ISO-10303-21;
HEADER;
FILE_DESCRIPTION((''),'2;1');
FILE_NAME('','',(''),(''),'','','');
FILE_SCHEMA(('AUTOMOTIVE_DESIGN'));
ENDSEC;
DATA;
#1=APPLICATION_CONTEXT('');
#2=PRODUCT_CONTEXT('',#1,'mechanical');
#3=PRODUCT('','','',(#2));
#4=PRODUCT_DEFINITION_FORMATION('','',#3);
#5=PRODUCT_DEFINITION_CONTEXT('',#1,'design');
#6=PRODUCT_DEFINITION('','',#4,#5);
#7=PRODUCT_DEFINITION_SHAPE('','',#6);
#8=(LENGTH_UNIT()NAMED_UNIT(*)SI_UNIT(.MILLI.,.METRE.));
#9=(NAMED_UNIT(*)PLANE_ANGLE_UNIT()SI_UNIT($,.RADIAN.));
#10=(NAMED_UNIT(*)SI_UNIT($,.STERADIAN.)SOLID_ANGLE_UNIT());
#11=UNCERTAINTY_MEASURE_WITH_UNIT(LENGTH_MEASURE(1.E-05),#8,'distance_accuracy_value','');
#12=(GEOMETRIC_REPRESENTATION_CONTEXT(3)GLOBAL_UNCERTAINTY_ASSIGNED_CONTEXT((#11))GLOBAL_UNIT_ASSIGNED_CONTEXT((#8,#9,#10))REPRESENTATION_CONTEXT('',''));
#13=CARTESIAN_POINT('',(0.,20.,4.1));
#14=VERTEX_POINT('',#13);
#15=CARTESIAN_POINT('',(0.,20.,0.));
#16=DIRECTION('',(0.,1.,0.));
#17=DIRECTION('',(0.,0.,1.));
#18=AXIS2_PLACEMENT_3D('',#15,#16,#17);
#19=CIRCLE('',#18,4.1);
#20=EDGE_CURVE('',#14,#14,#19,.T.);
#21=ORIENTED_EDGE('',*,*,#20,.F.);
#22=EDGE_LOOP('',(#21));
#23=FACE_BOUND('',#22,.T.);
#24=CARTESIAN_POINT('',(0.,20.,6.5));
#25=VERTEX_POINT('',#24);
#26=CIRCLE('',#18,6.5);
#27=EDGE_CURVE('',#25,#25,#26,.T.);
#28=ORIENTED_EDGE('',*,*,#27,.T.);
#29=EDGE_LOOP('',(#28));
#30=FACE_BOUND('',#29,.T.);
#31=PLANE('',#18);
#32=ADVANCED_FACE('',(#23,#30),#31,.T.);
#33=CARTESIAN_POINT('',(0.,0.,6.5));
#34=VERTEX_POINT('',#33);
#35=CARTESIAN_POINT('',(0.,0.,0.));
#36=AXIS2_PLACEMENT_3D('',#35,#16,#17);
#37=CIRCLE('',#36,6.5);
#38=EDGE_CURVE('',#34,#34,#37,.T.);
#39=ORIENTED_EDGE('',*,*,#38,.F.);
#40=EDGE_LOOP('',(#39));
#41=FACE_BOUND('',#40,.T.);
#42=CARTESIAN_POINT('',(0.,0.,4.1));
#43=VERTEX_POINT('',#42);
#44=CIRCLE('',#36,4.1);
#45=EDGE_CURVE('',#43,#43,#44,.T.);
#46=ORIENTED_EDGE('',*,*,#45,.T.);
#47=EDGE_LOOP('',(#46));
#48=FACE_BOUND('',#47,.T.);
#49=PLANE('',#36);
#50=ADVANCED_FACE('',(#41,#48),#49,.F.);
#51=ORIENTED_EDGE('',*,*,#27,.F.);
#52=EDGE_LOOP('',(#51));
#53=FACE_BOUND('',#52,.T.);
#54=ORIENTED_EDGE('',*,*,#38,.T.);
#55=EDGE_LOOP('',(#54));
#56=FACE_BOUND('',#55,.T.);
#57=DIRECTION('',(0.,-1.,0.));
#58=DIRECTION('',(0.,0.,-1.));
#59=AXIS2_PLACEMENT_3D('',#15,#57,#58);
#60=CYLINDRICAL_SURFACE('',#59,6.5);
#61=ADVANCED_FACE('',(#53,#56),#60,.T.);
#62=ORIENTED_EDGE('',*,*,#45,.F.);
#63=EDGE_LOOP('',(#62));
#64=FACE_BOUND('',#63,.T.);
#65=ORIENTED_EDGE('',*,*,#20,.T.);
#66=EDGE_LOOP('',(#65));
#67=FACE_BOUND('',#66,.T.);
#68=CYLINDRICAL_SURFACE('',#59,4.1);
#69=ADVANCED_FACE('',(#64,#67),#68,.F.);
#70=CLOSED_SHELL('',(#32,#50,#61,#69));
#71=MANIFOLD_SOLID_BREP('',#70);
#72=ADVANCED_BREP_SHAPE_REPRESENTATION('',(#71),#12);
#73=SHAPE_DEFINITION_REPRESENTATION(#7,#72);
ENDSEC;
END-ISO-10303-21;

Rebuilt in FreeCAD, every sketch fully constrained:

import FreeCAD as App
import Part
import Sketcher

V = App.Vector
Q = App.Units.Quantity

doc = App.newDocument("Part")
body = doc.addObject("PartDesign::Body", "Body")

# Sketch on XZ plane
sketch1 = doc.addObject("Sketcher::SketchObject", "Sketch")
body.addObject(sketch1)
sketch1.AttachmentSupport = (doc.XZ_Plane, [""])
sketch1.MapMode = "FlatFace"
sketch1.addGeometry([
    Part.Circle(V(0, 0, 0), V(0, 0, 1), 6.5),
    Part.Circle(V(0, 0, 0), V(0, 0, 1), 4.1),
], False)
sketch1.addConstraint([
    Sketcher.Constraint("Coincident", 0, 3, -1, 1),
    Sketcher.Constraint("Coincident", 1, 3, -1, 1),
    Sketcher.Constraint("Diameter", 0, Q("13 mm")),
    Sketcher.Constraint("Diameter", 1, Q("8.2 mm")),
])
pad1 = doc.addObject("PartDesign::Pad", "Pad")
body.addObject(pad1)
pad1.Profile = sketch1
pad1.Length = 20
pad1.Reversed = True

doc.recompute()
